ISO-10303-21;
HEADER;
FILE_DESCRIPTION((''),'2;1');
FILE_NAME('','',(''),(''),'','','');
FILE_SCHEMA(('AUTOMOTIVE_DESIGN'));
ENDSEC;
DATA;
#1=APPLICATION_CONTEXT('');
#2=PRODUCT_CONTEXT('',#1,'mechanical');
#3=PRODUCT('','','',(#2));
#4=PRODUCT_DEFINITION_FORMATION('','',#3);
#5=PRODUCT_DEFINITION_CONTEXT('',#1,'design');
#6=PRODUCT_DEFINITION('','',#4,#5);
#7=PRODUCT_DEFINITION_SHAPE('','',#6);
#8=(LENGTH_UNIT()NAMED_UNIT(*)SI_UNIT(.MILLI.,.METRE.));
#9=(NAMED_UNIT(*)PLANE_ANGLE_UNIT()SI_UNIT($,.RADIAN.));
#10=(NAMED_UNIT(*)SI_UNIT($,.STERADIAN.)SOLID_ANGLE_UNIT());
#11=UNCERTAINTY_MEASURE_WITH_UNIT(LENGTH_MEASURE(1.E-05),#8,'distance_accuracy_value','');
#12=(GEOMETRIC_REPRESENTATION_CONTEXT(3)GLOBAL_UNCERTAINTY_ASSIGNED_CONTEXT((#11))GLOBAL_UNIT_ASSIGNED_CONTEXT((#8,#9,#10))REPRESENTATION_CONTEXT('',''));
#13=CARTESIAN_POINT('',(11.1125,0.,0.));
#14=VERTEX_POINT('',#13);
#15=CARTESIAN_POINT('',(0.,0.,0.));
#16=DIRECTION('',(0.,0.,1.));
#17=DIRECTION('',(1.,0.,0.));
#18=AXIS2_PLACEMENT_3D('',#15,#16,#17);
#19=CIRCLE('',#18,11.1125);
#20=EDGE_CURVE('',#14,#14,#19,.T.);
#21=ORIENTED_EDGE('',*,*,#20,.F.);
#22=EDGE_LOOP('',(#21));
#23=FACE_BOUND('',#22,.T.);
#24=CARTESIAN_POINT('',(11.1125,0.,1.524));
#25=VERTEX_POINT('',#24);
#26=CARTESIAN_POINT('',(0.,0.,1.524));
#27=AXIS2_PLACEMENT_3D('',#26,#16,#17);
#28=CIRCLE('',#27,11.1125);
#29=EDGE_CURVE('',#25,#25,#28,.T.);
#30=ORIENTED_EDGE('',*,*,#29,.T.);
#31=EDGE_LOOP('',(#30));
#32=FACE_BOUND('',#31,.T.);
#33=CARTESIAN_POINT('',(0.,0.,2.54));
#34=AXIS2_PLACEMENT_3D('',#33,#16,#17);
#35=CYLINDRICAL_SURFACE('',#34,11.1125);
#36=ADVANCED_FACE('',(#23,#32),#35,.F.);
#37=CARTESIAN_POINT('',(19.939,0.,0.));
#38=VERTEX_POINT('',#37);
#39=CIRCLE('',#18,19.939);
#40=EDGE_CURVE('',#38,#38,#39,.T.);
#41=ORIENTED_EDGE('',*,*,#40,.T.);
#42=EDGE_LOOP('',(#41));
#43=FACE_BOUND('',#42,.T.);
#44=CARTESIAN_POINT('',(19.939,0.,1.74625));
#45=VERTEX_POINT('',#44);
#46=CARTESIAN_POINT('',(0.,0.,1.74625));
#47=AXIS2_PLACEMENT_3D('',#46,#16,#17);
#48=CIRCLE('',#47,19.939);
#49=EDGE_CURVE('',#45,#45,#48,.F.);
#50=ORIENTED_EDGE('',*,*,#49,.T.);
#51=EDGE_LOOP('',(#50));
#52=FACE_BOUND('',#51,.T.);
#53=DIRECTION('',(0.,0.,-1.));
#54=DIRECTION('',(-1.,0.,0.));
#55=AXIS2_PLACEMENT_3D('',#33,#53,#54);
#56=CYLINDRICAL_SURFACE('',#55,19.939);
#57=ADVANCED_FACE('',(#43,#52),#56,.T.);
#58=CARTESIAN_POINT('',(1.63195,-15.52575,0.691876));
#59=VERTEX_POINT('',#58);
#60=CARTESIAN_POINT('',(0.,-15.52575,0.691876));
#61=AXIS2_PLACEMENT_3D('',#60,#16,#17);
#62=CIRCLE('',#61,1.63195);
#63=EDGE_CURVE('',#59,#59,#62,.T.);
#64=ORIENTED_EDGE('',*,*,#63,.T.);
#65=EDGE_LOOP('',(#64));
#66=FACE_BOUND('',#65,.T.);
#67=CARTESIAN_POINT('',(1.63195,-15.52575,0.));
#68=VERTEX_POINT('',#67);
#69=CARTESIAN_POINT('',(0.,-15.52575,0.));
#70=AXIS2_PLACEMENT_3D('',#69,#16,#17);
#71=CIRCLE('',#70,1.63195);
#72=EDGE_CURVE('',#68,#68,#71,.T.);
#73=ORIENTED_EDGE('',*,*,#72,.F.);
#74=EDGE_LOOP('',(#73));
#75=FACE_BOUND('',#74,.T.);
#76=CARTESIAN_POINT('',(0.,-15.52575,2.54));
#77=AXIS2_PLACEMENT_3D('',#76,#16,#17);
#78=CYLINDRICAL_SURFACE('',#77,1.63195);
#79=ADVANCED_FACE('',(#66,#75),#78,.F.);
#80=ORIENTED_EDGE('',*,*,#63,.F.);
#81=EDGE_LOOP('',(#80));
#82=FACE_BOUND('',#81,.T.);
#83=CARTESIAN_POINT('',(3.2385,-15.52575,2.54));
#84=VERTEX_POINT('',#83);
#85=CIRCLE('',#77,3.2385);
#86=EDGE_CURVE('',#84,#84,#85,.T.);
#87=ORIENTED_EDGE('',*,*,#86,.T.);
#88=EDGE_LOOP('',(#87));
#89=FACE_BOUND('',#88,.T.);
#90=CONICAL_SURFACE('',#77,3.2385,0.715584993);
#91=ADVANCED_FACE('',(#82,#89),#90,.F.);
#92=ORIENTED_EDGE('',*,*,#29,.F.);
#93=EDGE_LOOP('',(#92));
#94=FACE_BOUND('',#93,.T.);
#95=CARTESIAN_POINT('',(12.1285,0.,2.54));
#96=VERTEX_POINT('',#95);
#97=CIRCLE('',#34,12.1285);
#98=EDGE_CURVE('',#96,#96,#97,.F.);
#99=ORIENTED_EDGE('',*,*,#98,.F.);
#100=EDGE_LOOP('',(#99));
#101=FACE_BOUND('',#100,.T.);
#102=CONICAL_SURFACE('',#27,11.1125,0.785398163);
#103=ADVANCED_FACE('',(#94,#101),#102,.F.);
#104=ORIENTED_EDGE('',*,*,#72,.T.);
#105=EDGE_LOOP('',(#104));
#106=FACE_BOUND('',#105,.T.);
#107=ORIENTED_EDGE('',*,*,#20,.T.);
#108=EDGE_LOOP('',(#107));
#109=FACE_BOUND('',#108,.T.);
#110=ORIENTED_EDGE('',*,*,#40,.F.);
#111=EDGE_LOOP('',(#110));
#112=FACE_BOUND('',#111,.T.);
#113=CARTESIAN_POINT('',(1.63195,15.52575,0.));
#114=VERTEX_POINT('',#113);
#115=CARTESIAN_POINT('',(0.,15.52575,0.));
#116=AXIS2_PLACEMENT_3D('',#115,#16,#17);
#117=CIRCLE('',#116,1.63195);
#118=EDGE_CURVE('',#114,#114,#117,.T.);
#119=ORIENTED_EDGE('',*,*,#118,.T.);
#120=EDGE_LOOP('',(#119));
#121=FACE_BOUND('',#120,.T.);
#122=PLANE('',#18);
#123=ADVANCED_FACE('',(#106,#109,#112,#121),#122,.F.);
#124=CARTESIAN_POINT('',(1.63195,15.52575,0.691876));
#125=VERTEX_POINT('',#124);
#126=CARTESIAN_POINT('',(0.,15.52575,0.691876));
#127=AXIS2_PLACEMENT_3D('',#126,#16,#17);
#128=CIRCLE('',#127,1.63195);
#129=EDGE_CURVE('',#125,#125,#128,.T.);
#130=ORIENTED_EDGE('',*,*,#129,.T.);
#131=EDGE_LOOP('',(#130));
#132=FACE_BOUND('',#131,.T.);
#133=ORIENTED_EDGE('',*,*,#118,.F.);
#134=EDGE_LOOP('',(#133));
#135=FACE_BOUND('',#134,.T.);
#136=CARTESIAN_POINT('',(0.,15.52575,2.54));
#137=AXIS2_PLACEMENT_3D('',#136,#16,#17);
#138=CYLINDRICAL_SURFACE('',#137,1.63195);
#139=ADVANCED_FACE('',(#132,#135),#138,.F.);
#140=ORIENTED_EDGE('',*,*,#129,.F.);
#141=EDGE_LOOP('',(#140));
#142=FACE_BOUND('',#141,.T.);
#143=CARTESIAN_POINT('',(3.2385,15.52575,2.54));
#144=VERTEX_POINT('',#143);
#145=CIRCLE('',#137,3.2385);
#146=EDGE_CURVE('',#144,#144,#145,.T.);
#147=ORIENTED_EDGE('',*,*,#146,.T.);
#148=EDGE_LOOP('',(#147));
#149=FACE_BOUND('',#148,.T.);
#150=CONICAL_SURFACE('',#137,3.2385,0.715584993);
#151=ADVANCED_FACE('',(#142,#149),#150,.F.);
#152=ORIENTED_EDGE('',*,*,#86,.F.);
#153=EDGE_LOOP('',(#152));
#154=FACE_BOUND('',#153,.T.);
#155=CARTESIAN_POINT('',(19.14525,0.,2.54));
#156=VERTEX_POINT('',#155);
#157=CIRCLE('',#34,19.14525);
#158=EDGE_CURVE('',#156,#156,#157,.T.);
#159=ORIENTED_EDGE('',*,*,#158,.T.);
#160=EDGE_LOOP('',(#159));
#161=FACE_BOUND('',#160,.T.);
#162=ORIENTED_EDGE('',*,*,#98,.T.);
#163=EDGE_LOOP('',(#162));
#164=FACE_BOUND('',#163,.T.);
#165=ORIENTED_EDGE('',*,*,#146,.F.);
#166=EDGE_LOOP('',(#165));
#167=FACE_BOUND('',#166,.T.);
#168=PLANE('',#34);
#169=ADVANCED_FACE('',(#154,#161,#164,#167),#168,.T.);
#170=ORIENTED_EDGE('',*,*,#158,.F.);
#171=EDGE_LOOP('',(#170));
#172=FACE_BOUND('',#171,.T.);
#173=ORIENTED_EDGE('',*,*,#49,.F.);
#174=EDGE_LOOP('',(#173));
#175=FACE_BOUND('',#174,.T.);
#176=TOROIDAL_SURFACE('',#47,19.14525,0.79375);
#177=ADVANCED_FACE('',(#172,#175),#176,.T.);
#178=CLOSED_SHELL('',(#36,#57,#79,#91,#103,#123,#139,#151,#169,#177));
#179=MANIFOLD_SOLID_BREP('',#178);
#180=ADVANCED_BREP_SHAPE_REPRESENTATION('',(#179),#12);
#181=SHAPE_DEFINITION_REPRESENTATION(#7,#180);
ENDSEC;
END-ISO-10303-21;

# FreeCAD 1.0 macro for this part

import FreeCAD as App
import Part
import Sketcher
Q = App.Units.Quantity


def edges_at(feature, points):
    """Names of the edges that pass closest to the given points."""
    edges = feature.Shape.Edges
    near = lambda p: min(range(len(edges)), key=lambda i: edges[i].distToShape(Part.Vertex(*p))[0])
    return sorted({f"Edge{near(p) + 1}" for p in points})


def add_polygon(sketch, points):
    """Adds a closed chain of lines whose ends are joined by coincident constraints."""
    first, n = sketch.GeometryCount, len(points)
    for a, b in zip(points, points[1:] + points[:1]):
        sketch.addGeometry(Part.LineSegment(App.Vector(*a, 0), App.Vector(*b, 0)), False)
    for i in range(n):
        sketch.addConstraint(Sketcher.Constraint("Coincident", first + i, 2, first + (i + 1) % n, 1))

doc = App.newDocument("Part")
body = doc.addObject("PartDesign::Body", "Body")

sketch1 = body.newObject("Sketcher::SketchObject", "Sketch")
sketch1.AttachmentSupport = (doc.getObject("XY_Plane"), [""])
sketch1.MapMode = "FlatFace"
sketch1.addGeometry(Part.Circle(App.Vector(0, 0, 0), App.Vector(0, 0, 1), 19.939), False)
sketch1.addConstraint([
    Sketcher.Constraint("Coincident", 0, 3, -1, 1),
    Sketcher.Constraint("Diameter", 0, Q("1.57 in")),
])
pad1 = body.newObject("PartDesign::Pad", "Pad")
pad1.Profile = sketch1
pad1.Length = Q("0.1 in")

sketch2 = body.newObject("Sketcher::SketchObject", "Sketch001")
sketch2.AttachmentSupport = (doc.getObject("XY_Plane"), [""])
sketch2.MapMode = "FlatFace"
sketch2.AttachmentOffset = App.Placement(App.Vector(0, 0, 0.1 * 25.4), App.Rotation())
sketch2.addGeometry(Part.Circle(App.Vector(0, 0, 0), App.Vector(0, 0, 1), 11.1125), False)
sketch2.addConstraint([
    Sketcher.Constraint("Coincident", 0, 3, -1, 1),
    Sketcher.Constraint("Diameter", 0, Q("0.875 in")),
])
doc.recompute()
hole = body.newObject("PartDesign::Hole", "Hole")
hole.Profile = sketch2
hole.ThreadType = "None"
hole.Diameter = Q("0.875 in")
hole.DepthType = "ThroughAll"

sketch3 = body.newObject("Sketcher::SketchObject", "Sketch002")
sketch3.AttachmentSupport = (doc.getObject("YZ_Plane"), [""])
sketch3.MapMode = "FlatFace"
add_polygon(sketch3, [(15.52575, 0), (15.52575, 2.54), (12.28725, 2.54), (13.8938, 0.691876), (13.8938, 0)])
sketch3.addGeometry(Part.LineSegment(App.Vector(15.52575, 2.54, 0), App.Vector(15.52575, 0, 0)), True)
sketch3.addConstraint([
    Sketcher.Constraint("Vertical", 0),
    Sketcher.Constraint("Horizontal", 1),
    Sketcher.Constraint("Vertical", 3),
    Sketcher.Constraint("Horizontal", 4),
    Sketcher.Constraint("Vertical", 5),
    Sketcher.Constraint("Coincident", 5, 1, 0, 2),
    Sketcher.Constraint("PointOnObject", 3, 2, -1),
    Sketcher.Constraint("PointOnObject", 5, 2, -1),
    Sketcher.Constraint("DistanceY", 0, 1, 0, 2, Q("0.1 in")),
    Sketcher.Constraint("Angle", 2, Q("-49 deg")),
    Sketcher.Constraint("DistanceX", 1, 2, 1, 1, Q("0.1275 in")),
    Sketcher.Constraint("DistanceX", -1, 1, 2, 2, Q("0.547 in")),
    Sketcher.Constraint("DistanceX", 4, 1, 4, 2, Q("1.63195 mm")),
])
groove = body.newObject("PartDesign::Groove", "Groove")
groove.Profile = sketch3
groove.ReferenceAxis = (sketch3, ["Axis0"])
groove.Angle = 360
doc.recompute()

linearpattern = body.newObject("PartDesign::LinearPattern", "LinearPattern")
linearpattern.Originals = [groove]
linearpattern.Direction = (doc.getObject("Y_Axis"), [""])
linearpattern.Mode = "offset"
linearpattern.Offset = Q("1.2225 in")
linearpattern.Occurrences = 2
linearpattern.Reversed = True
body.Tip = linearpattern
doc.recompute()

chamfer = body.newObject("PartDesign::Chamfer", "Chamfer")
chamfer.Base = (linearpattern, edges_at(linearpattern, [(11.113, 0, 2.54)]))
chamfer.Size = Q("0.04 in")
doc.recompute()

fillet = body.newObject("PartDesign::Fillet", "Fillet")
fillet.Base = (chamfer, edges_at(chamfer, [(-19.939, 0, 2.54)]))
fillet.Radius = Q("0.03125 in")

doc.recompute()
